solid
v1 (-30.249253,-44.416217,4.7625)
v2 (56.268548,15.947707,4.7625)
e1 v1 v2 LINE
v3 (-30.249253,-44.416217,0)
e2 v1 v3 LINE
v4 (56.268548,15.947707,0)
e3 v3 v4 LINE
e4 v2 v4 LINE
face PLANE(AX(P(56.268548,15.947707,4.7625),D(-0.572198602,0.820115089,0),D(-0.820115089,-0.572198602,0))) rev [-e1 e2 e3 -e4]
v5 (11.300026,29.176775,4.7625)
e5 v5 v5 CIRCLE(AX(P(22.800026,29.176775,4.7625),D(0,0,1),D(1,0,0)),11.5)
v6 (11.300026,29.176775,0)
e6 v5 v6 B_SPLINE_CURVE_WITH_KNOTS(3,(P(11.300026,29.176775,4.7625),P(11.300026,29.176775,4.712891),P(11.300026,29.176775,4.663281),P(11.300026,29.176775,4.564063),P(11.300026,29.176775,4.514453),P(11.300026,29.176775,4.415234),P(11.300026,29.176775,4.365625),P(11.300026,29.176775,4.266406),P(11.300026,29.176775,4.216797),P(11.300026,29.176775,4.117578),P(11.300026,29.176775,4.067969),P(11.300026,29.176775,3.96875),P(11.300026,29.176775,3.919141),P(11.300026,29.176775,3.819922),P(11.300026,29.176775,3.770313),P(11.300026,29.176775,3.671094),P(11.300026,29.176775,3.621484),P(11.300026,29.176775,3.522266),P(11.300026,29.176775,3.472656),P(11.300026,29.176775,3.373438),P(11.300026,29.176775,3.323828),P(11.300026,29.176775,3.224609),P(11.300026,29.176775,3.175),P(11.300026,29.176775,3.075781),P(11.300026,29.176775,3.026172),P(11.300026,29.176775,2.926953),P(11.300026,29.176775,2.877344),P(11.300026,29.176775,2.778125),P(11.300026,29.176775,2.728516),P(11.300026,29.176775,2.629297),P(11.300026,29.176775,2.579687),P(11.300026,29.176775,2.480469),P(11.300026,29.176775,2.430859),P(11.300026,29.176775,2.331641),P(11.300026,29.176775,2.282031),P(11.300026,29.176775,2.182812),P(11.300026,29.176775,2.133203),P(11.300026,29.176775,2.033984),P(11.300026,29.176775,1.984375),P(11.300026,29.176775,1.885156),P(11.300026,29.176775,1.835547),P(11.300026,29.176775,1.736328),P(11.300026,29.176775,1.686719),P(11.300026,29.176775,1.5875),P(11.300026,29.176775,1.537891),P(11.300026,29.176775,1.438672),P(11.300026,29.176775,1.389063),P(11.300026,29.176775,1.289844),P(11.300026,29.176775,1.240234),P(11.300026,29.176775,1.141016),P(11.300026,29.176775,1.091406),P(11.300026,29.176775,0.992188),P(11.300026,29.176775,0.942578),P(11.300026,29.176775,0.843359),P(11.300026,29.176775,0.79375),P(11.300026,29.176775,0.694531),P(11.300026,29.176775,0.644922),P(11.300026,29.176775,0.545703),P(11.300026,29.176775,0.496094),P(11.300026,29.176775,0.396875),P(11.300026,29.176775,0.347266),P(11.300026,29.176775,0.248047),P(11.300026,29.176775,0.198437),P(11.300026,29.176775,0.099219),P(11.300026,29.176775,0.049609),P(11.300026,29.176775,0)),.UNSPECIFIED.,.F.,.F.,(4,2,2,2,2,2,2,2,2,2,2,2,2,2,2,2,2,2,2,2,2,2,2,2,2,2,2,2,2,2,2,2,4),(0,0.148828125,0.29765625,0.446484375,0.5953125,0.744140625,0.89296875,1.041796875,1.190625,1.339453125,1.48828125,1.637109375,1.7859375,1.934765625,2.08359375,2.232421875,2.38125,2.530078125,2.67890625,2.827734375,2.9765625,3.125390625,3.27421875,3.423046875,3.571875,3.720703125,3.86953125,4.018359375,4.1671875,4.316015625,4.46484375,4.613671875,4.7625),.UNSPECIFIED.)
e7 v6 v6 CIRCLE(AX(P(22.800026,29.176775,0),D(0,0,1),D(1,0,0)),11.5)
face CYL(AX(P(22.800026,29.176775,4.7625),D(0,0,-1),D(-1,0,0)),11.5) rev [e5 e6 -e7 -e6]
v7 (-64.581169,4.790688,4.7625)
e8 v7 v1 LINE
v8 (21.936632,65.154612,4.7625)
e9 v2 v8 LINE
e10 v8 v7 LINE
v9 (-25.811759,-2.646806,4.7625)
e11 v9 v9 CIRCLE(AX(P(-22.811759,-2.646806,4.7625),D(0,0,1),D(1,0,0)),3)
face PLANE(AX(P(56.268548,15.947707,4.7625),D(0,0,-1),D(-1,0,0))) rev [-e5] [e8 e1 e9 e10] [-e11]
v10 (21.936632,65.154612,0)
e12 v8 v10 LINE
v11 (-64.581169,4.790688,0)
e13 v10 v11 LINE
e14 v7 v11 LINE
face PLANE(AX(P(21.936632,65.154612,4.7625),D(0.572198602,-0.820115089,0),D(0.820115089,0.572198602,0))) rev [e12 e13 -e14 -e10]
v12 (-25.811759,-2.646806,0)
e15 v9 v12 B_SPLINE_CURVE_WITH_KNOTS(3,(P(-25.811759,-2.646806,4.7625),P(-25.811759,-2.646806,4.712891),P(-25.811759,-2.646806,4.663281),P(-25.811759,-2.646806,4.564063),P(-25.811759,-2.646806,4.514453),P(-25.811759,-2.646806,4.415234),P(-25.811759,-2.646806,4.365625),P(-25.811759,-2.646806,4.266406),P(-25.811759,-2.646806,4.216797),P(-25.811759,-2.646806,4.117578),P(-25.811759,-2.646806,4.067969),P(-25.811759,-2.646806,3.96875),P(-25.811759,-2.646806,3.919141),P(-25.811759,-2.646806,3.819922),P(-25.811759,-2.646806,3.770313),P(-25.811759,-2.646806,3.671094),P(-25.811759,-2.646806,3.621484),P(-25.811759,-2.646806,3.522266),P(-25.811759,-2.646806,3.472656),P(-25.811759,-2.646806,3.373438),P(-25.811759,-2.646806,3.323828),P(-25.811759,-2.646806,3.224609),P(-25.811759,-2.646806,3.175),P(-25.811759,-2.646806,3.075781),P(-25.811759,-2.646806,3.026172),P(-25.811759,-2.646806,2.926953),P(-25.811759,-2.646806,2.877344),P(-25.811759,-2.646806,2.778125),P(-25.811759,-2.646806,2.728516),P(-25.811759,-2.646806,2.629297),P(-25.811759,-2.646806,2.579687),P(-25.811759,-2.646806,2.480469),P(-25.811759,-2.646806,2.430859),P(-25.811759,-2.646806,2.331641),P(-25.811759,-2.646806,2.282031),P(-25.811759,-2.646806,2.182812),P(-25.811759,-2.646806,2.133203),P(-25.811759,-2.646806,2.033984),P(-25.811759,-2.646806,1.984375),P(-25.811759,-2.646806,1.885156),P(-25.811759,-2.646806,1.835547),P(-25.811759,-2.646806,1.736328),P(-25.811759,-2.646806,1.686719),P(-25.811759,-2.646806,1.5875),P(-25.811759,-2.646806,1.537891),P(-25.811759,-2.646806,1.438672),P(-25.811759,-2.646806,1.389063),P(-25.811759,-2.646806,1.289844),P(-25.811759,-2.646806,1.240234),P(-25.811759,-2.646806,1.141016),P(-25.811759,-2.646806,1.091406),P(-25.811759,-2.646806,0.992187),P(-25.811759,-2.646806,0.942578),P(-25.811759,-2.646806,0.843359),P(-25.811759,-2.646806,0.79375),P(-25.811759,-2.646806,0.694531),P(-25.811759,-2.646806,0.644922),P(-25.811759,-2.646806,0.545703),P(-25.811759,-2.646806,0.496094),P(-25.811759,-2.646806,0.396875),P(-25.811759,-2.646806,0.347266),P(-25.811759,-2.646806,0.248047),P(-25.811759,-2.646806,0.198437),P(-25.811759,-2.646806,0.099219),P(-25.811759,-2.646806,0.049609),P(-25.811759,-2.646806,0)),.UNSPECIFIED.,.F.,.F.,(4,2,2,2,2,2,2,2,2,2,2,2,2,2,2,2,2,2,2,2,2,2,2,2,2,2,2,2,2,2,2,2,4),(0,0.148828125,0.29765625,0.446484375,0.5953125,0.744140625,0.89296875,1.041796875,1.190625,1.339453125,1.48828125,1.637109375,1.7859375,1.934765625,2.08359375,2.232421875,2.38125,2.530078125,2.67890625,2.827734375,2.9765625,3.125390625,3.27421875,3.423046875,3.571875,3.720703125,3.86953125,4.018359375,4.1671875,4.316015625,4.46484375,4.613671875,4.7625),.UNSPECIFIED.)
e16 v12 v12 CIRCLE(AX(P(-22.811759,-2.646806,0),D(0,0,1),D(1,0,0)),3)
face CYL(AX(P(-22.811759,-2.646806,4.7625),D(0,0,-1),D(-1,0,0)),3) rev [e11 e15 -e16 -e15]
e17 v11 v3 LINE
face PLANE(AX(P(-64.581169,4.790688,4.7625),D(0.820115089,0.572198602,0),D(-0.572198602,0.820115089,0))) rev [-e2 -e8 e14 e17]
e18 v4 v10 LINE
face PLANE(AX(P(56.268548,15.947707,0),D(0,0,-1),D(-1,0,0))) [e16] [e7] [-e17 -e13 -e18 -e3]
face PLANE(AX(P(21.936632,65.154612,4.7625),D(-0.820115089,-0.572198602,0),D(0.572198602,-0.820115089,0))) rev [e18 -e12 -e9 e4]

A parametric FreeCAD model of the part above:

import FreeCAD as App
import Part
import Sketcher

doc = App.newDocument("Part")
body = doc.addObject("PartDesign::Body", "Body")

# Sketch on XY plane
sketch1 = doc.addObject("Sketcher::SketchObject", "Sketch")
body.addObject(sketch1)
sketch1.AttachmentSupport = (doc.XY_Plane, [""])
sketch1.MapMode = "FlatFace"
sketch1.addGeometry(Part.LineSegment(App.Vector(21.9, 65.2, 0), App.Vector(-64.6, 4.8, 0)), False)
sketch1.addGeometry(Part.LineSegment(App.Vector(-64.6, 4.8, 0), App.Vector(-30.2, -44.4, 0)), False)
sketch1.addGeometry(Part.LineSegment(App.Vector(-30.2, -44.4, 0), App.Vector(56.3, 15.9, 0)), False)
sketch1.addGeometry(Part.LineSegment(App.Vector(56.3, 15.9, 0), App.Vector(21.9, 65.2, 0)), False)
sketch1.addGeometry(Part.Circle(App.Vector(-22.8, -2.6, 0), App.Vector(0, 0, 1), 3), False)
sketch1.addGeometry(Part.Circle(App.Vector(22.8, 29.2, 0), App.Vector(0, 0, 1), 11.5), False)
sketch1.addConstraint(Sketcher.Constraint("Coincident", 0, 2, 1, 1))
sketch1.addConstraint(Sketcher.Constraint("Coincident", 1, 2, 2, 1))
sketch1.addConstraint(Sketcher.Constraint("Coincident", 2, 2, 3, 1))
sketch1.addConstraint(Sketcher.Constraint("Coincident", 3, 2, 0, 1))
sketch1.addConstraint(Sketcher.Constraint("Perpendicular", 0, 1))
sketch1.addConstraint(Sketcher.Constraint("Perpendicular", 1, 2))
sketch1.addConstraint(Sketcher.Constraint("Perpendicular", 2, 3))
sketch1.addConstraint(Sketcher.Constraint("Diameter", 4, 6.0))
sketch1.addConstraint(Sketcher.Constraint("Diameter", 5, 23.0))
sketch1.addConstraint(Sketcher.Constraint("Distance", 1, 60.0))
sketch1.addConstraint(Sketcher.Constraint("DistanceX", 1, 2, 2, 2, 86.517801))
sketch1.addConstraint(Sketcher.Constraint("DistanceX", 4, 3, -1, 1, 22.811759))
sketch1.addConstraint(Sketcher.Constraint("DistanceX", 0, 2, -1, 1, 64.581169))
sketch1.addConstraint(Sketcher.Constraint("DistanceY", -1, 1, 0, 2, 4.790688))
sketch1.addConstraint(Sketcher.Constraint("DistanceY", 4, 3, 5, 3, 31.823582))
sketch1.addConstraint(Sketcher.Constraint("DistanceY", 1, 2, 4, 3, 41.769411))
sketch1.addConstraint(Sketcher.Constraint("DistanceX", 1, 2, 5, 3, 53.049279))
sketch1.addConstraint(Sketcher.Constraint("DistanceY", 2, 2, 5, 3, 13.229068))
pad1 = doc.addObject("PartDesign::Pad", "Pad")
body.addObject(pad1)
pad1.Profile = sketch1
pad1.Length = 4.7625

doc.recompute()
